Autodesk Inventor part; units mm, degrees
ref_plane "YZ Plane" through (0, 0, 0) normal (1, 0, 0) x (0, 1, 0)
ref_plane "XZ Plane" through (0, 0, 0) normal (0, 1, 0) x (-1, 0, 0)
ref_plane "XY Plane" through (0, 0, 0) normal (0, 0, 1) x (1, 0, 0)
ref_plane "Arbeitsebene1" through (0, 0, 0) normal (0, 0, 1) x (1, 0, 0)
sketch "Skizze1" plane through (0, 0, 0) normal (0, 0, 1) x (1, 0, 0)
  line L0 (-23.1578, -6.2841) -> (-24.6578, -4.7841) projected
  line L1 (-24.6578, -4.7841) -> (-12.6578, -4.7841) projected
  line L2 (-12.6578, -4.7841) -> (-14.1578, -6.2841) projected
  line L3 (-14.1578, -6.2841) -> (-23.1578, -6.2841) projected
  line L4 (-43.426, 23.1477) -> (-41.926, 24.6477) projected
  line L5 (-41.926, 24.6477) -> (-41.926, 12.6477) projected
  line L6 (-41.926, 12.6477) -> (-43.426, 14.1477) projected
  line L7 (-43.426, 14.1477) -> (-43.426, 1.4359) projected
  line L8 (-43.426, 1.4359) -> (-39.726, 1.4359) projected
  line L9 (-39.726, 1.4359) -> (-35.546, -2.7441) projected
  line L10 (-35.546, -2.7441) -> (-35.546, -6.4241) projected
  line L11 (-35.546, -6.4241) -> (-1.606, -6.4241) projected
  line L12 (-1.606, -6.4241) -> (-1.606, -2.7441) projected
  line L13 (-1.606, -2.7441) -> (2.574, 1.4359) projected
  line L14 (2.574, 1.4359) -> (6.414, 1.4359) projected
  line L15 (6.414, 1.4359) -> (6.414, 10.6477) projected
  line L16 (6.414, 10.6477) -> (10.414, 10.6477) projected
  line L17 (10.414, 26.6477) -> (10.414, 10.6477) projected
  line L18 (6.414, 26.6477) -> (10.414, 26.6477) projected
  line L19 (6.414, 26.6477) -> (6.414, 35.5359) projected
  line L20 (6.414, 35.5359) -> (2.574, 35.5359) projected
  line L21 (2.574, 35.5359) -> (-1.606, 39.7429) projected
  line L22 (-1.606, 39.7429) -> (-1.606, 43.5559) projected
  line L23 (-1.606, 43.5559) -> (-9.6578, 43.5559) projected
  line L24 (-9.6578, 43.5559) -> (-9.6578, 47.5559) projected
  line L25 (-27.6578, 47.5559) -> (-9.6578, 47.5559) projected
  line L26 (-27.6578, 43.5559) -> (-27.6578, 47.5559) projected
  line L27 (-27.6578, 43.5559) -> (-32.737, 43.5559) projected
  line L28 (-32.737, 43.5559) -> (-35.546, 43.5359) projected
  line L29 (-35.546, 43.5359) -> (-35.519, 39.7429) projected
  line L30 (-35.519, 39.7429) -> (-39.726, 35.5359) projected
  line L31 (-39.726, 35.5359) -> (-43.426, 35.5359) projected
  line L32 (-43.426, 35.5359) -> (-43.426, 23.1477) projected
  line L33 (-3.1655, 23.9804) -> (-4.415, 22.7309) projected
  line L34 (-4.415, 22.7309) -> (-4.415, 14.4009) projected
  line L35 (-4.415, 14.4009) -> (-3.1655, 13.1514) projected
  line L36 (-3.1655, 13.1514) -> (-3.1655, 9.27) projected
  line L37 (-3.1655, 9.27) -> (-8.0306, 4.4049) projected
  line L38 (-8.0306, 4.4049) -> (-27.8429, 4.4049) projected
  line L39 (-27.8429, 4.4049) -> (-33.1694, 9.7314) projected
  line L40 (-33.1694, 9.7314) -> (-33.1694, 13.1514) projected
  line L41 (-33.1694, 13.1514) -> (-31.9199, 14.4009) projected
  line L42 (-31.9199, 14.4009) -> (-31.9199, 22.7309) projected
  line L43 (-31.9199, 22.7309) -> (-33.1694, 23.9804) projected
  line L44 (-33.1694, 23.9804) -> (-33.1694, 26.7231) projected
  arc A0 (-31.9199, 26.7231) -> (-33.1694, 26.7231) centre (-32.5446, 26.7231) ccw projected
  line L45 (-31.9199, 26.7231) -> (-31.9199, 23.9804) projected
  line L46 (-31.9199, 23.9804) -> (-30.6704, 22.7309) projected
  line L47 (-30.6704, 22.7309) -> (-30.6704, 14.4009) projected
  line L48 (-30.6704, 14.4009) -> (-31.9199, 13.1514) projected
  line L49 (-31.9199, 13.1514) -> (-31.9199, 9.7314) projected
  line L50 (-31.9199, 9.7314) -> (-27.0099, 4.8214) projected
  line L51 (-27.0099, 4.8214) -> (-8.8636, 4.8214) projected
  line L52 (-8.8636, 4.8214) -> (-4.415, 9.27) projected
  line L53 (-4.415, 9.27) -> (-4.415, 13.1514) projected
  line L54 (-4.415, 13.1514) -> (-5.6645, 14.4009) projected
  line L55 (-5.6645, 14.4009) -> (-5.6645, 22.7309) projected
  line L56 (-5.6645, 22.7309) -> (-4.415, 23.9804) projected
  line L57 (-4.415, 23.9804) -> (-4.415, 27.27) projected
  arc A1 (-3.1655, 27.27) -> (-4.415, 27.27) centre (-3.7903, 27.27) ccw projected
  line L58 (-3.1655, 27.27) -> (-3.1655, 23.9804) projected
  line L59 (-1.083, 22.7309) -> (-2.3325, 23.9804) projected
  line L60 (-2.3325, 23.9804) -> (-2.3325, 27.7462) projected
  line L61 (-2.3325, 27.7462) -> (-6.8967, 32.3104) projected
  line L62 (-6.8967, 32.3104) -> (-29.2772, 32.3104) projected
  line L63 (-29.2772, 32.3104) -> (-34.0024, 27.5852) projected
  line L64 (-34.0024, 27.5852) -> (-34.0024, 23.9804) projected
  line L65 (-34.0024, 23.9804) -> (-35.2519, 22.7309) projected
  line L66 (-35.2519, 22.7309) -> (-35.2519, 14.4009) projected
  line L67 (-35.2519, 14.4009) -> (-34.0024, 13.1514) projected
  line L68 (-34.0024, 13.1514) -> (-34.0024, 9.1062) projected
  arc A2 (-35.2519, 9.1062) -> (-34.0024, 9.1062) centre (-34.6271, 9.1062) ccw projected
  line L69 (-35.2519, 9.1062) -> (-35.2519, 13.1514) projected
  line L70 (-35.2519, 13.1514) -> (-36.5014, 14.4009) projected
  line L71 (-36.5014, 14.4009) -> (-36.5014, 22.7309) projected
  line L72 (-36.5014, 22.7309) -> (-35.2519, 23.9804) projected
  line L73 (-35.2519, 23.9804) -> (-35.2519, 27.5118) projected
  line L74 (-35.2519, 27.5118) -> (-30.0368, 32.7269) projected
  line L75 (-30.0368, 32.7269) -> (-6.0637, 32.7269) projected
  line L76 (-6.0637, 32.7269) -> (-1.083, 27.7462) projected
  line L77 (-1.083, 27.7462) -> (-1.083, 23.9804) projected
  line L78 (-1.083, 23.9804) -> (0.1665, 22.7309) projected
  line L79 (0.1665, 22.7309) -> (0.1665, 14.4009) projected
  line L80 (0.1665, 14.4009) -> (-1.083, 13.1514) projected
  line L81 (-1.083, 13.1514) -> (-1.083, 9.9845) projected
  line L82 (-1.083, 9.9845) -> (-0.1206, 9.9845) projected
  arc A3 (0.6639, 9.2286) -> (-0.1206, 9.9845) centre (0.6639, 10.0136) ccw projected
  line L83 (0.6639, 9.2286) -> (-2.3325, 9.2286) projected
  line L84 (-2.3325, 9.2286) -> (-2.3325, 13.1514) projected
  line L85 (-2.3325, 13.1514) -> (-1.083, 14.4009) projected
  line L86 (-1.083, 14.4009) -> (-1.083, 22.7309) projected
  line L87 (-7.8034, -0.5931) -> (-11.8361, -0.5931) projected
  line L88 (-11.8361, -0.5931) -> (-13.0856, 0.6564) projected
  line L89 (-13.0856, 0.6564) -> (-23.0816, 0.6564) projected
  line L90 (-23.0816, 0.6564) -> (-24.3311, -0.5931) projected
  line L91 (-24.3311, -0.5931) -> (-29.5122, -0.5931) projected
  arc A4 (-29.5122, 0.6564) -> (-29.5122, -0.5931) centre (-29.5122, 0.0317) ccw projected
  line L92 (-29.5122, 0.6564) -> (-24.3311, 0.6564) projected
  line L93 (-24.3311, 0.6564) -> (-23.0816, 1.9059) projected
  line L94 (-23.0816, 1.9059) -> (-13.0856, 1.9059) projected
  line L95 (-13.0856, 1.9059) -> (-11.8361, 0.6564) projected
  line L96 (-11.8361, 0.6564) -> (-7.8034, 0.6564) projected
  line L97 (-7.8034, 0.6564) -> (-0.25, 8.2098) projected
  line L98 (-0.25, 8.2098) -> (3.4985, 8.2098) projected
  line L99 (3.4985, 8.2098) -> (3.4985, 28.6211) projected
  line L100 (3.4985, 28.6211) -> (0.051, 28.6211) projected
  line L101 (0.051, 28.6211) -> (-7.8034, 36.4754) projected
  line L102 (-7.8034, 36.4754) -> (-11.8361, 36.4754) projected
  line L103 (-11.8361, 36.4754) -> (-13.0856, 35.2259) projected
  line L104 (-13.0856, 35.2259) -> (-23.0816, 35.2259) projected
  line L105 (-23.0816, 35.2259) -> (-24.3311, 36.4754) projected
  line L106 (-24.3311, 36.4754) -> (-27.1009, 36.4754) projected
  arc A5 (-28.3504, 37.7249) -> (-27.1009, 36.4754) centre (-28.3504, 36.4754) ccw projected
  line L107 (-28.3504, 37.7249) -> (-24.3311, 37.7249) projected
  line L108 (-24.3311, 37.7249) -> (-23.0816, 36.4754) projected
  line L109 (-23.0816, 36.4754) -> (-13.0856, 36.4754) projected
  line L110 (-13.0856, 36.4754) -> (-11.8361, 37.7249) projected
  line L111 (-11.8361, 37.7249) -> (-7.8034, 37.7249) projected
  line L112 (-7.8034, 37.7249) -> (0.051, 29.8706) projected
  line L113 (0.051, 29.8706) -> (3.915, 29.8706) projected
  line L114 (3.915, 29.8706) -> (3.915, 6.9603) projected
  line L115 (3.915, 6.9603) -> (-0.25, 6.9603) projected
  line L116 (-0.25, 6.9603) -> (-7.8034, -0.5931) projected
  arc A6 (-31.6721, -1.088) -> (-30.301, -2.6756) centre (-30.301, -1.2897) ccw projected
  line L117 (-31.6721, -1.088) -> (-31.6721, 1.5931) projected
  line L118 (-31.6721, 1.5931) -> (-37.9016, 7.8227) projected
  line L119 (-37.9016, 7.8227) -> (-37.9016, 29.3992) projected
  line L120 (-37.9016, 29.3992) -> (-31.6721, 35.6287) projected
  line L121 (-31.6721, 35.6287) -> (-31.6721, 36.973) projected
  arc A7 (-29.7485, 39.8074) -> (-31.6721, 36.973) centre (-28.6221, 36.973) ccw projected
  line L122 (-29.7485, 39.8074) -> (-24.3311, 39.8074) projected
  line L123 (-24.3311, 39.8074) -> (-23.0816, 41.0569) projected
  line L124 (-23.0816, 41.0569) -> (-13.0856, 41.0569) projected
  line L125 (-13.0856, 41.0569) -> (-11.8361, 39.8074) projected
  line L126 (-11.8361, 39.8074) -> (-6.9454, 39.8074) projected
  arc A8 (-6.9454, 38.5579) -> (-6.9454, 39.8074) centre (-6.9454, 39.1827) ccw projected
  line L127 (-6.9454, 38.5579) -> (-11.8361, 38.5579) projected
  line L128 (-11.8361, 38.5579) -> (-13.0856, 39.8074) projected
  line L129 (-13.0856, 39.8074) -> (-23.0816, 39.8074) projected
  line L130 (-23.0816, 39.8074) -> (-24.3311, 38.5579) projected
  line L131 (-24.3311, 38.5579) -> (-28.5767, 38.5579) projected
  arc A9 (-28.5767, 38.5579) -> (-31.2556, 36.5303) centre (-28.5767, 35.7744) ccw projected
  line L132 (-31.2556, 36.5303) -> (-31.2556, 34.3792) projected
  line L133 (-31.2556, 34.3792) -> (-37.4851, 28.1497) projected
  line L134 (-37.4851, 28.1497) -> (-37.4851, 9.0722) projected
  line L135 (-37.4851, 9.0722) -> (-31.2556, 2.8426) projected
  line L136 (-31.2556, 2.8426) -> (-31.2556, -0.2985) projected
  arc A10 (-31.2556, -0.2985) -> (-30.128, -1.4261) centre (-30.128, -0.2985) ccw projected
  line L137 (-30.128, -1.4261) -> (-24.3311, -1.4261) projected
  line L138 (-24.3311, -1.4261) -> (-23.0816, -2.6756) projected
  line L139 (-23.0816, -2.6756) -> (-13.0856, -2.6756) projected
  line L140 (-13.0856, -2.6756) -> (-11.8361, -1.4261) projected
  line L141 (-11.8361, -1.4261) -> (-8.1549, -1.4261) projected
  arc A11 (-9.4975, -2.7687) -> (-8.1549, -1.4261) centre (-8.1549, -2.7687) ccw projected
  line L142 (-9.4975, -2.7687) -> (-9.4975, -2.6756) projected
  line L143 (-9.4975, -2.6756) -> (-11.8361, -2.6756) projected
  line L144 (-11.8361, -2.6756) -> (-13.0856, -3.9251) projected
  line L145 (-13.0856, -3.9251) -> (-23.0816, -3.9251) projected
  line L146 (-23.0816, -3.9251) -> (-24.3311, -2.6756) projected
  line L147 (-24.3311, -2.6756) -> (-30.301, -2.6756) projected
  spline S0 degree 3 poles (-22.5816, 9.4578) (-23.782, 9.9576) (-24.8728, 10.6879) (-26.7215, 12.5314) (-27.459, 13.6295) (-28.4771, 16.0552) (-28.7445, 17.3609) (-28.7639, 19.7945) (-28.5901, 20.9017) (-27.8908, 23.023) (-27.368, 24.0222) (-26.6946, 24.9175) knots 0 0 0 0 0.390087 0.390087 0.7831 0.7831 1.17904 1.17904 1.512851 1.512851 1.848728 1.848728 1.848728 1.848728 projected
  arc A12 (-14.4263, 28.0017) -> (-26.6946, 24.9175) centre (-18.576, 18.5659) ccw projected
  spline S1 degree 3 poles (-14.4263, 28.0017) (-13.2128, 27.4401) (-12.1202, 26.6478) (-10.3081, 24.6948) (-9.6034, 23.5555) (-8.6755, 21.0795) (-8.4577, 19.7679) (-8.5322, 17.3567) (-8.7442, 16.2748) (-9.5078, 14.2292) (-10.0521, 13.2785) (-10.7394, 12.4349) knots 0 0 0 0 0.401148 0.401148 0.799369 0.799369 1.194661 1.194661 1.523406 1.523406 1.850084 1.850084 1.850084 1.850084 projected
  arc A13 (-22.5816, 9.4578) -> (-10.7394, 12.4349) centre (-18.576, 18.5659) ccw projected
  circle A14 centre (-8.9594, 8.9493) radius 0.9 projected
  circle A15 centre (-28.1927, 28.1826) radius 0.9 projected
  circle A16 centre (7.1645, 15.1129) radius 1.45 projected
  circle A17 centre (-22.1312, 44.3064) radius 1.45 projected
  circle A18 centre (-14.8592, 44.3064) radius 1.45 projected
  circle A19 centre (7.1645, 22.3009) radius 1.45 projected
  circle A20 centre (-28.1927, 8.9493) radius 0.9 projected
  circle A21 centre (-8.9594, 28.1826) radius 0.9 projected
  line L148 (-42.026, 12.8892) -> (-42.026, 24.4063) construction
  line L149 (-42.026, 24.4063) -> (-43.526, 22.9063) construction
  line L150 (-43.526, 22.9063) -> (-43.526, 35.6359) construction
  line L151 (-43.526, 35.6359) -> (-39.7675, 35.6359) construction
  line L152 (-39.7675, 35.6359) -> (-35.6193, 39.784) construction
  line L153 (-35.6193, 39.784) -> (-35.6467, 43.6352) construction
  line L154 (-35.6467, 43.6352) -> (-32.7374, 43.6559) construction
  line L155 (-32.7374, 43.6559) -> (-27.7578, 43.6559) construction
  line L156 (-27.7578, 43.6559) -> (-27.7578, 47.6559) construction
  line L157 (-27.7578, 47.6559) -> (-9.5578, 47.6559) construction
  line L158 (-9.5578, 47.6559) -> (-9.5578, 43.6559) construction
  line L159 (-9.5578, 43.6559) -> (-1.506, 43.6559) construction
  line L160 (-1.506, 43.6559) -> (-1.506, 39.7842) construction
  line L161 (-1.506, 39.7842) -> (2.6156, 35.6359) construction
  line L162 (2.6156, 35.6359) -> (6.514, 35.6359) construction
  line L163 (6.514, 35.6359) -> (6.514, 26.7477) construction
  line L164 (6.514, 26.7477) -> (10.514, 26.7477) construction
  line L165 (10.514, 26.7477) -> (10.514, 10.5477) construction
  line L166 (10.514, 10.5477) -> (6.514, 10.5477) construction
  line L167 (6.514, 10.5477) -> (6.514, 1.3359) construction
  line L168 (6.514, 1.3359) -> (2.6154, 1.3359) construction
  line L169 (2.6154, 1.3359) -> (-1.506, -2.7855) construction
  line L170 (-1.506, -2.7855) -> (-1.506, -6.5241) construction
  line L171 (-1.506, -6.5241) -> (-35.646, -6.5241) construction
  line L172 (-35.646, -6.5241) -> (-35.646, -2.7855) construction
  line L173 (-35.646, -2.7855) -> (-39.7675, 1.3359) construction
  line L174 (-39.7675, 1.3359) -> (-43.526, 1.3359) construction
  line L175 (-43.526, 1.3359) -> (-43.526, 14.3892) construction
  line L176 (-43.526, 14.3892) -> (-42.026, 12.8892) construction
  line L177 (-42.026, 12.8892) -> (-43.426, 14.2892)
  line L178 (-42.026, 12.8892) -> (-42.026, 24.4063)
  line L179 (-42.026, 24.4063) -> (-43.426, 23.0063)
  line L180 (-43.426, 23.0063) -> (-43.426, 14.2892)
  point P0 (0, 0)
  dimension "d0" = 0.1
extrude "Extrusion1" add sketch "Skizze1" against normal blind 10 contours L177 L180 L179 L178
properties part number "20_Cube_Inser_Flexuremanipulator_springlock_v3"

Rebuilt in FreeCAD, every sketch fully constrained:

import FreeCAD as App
import Part
import Sketcher


def add_polygon(sketch, points):
    """Adds a closed chain of lines whose ends are joined by coincident constraints."""
    first, n = sketch.GeometryCount, len(points)
    for a, b in zip(points, points[1:] + points[:1]):
        sketch.addGeometry(Part.LineSegment(App.Vector(*a, 0), App.Vector(*b, 0)), False)
    for i in range(n):
        sketch.addConstraint(Sketcher.Constraint("Coincident", first + i, 2, first + (i + 1) % n, 1))

doc = App.newDocument("Part")
body = doc.addObject("PartDesign::Body", "Body")

sketch1 = body.newObject("Sketcher::SketchObject", "Sketch")
sketch1.AttachmentSupport = (doc.getObject("XY_Plane"), [""])
sketch1.MapMode = "FlatFace"
add_polygon(sketch1, [(-43.426, 14.2892), (-42.026, 12.8892), (-42.026, 24.4063), (-43.426, 23.0063)])
sketch1.addConstraint(Sketcher.Constraint("Vertical", 1))
sketch1.addConstraint(Sketcher.Constraint("Vertical", 3))
sketch1.addConstraint(Sketcher.Constraint("Perpendicular", 0, 2))
sketch1.addConstraint(Sketcher.Constraint("Equal", 0, 2))
sketch1.addConstraint(Sketcher.Constraint("DistanceX", 2, 2, 1, 2, 1.4))
sketch1.addConstraint(Sketcher.Constraint("DistanceY", 1, 1, 1, 2, 11.517))
sketch1.addConstraint(Sketcher.Constraint("DistanceX", 0, 2, -1, 1, 42.026))
sketch1.addConstraint(Sketcher.Constraint("DistanceY", -1, 1, 0, 2, 12.8892))
pad1 = body.newObject("PartDesign::Pad", "Pad")
pad1.Profile = sketch1
pad1.Length = 10
pad1.Reversed = True

doc.recompute()
